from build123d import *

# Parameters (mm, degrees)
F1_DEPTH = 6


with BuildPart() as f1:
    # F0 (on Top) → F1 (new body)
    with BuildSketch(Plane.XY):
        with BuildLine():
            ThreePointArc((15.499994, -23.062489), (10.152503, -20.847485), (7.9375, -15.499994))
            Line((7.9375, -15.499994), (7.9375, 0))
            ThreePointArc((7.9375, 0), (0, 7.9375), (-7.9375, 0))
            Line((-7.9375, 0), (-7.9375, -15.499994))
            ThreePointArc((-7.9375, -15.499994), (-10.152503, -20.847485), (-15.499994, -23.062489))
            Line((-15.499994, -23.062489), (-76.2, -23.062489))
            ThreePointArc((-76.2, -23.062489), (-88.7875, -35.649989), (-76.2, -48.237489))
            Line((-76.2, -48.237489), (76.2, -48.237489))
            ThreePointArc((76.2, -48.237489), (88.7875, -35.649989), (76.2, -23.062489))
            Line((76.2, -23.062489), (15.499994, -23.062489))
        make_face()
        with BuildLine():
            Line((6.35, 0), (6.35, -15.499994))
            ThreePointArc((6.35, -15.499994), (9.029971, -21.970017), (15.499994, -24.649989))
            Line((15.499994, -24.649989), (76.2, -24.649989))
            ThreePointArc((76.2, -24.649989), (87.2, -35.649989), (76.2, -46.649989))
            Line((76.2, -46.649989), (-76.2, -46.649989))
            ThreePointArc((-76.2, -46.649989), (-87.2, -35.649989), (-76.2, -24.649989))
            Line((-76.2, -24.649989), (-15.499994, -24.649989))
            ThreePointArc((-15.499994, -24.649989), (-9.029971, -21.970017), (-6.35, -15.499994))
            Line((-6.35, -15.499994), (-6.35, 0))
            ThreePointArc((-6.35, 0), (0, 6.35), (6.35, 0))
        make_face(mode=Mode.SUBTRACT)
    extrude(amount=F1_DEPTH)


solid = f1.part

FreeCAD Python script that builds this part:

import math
import FreeCAD as App
import Part
import Sketcher
Q = App.Units.Quantity

doc = App.newDocument("Part")
body = doc.addObject("PartDesign::Body", "Body")

# Sketch on XY plane
sketch1 = doc.addObject("Sketcher::SketchObject", "Sketch")
body.addObject(sketch1)
sketch1.AttachmentSupport = (doc.XY_Plane, [""])
sketch1.MapMode = "FlatFace"
sketch1.addGeometry([
    Part.ArcOfCircle(Part.Circle(App.Vector(15, -15, 0), App.Vector(0, 0, 1), 8), math.radians(180), math.radians(270)),  # 0
    Part.LineSegment(App.Vector(8, -15, 0), App.Vector(8, 0, 0)),  # 1
    Part.ArcOfCircle(Part.Circle(App.Vector(0, 0, 0), App.Vector(0, 0, 1), 8), math.radians(0), math.radians(180)),  # 2
    Part.LineSegment(App.Vector(-8, 0, 0), App.Vector(-8, -15, 0)),  # 3
    Part.ArcOfCircle(Part.Circle(App.Vector(-15, -15, 0), App.Vector(0, 0, 1), 8), math.radians(-90), math.radians(0)),  # 4
    Part.LineSegment(App.Vector(-15, -23, 0), App.Vector(-76, -23, 0)),  # 5
    Part.ArcOfCircle(Part.Circle(App.Vector(-76, -36, 0), App.Vector(0, 0, 1), 13), math.radians(90), math.radians(270)),  # 6
    Part.LineSegment(App.Vector(-76, -48, 0), App.Vector(76, -48, 0)),  # 7
    Part.ArcOfCircle(Part.Circle(App.Vector(76, -36, 0), App.Vector(0, 0, 1), 13), math.radians(-90), math.radians(90)),  # 8
    Part.LineSegment(App.Vector(76, -23, 0), App.Vector(15, -23, 0)),  # 9
    Part.ArcOfCircle(Part.Circle(App.Vector(0, 0, 0), App.Vector(0, 0, 1), 6), math.radians(0), math.radians(180)),  # 10
    Part.LineSegment(App.Vector(6, 0, 0), App.Vector(6, -15, 0)),  # 11
    Part.ArcOfCircle(Part.Circle(App.Vector(15, -15, 0), App.Vector(0, 0, 1), 9), math.radians(-180), math.radians(-90)),  # 12
    Part.LineSegment(App.Vector(15, -25, 0), App.Vector(76, -25, 0)),  # 13
    Part.ArcOfCircle(Part.Circle(App.Vector(76, -36, 0), App.Vector(0, 0, 1), 11), math.radians(-90), math.radians(90)),  # 14
    Part.LineSegment(App.Vector(76, -47, 0), App.Vector(-76, -47, 0)),  # 15
    Part.ArcOfCircle(Part.Circle(App.Vector(-76, -36, 0), App.Vector(0, 0, 1), 11), math.radians(90), math.radians(270)),  # 16
    Part.LineSegment(App.Vector(-76, -25, 0), App.Vector(-15, -25, 0)),  # 17
    Part.ArcOfCircle(Part.Circle(App.Vector(-15, -15, 0), App.Vector(0, 0, 1), 9), math.radians(-90), math.radians(0)),  # 18
    Part.LineSegment(App.Vector(-6, -15, 0), App.Vector(-6, 0, 0)),  # 19
], False)
sketch1.addConstraint([
    Sketcher.Constraint("Tangent", 0, 1, 1, 1),
    Sketcher.Constraint("Tangent", 1, 2, 2, 1),
    Sketcher.Constraint("Tangent", 2, 2, 3, 1),
    Sketcher.Constraint("Tangent", 3, 2, 4, 2),
    Sketcher.Constraint("Tangent", 4, 1, 5, 1),
    Sketcher.Constraint("Tangent", 5, 2, 6, 1),
    Sketcher.Constraint("Tangent", 6, 2, 7, 1),
    Sketcher.Constraint("Tangent", 7, 2, 8, 1),
    Sketcher.Constraint("Tangent", 8, 2, 9, 1),
    Sketcher.Constraint("Tangent", 9, 2, 0, 2),
    Sketcher.Constraint("Tangent", 10, 1, 11, 1),
    Sketcher.Constraint("Tangent", 11, 2, 12, 1),
    Sketcher.Constraint("Tangent", 12, 2, 13, 1),
    Sketcher.Constraint("Tangent", 13, 2, 14, 2),
    Sketcher.Constraint("Tangent", 14, 1, 15, 1),
    Sketcher.Constraint("Tangent", 15, 2, 16, 2),
    Sketcher.Constraint("Tangent", 16, 1, 17, 1),
    Sketcher.Constraint("Tangent", 17, 2, 18, 1),
    Sketcher.Constraint("Tangent", 18, 2, 19, 1),
    Sketcher.Constraint("Tangent", 19, 2, 10, 2),
    Sketcher.Constraint("Vertical", 1),
    Sketcher.Constraint("Vertical", 3),
    Sketcher.Constraint("Horizontal", 5),
    Sketcher.Constraint("Horizontal", 7),
    Sketcher.Constraint("Horizontal", 9),
    Sketcher.Constraint("Vertical", 11),
    Sketcher.Constraint("Horizontal", 13),
    Sketcher.Constraint("Horizontal", 15),
    Sketcher.Constraint("Horizontal", 17),
    Sketcher.Constraint("Vertical", 19),
    Sketcher.Constraint("Coincident", 2, 3, -1, 1),
    Sketcher.Constraint("Coincident", 10, 3, -1, 1),
    Sketcher.Constraint("Coincident", 12, 3, 0, 3),
    Sketcher.Constraint("Coincident", 14, 3, 8, 3),
    Sketcher.Constraint("Coincident", 16, 3, 6, 3),
    Sketcher.Constraint("Equal", 0, 4),
    Sketcher.Constraint("Equal", 6, 8),
    Sketcher.Constraint("Equal", 12, 18),
    Sketcher.Constraint("Equal", 5, 9),
    Sketcher.Constraint("DistanceX", 7, 1, 7, 2, Q("6 in")),
    Sketcher.Constraint("Radius", 10, Q("0.25 in")),
    Sketcher.Constraint("Radius", 2, Q("0.3125 in")),
    Sketcher.Constraint("Radius", 6, Q("12.5875 mm")),
    Sketcher.Constraint("Radius", 0, Q("7.562495 mm")),
    Sketcher.Constraint("DistanceY", 1, 1, 1, 2, Q("15.499994 mm")),
])
pad1 = doc.addObject("PartDesign::Pad", "Pad")
body.addObject(pad1)
pad1.Profile = sketch1
pad1.Length = 6

doc.recompute()
